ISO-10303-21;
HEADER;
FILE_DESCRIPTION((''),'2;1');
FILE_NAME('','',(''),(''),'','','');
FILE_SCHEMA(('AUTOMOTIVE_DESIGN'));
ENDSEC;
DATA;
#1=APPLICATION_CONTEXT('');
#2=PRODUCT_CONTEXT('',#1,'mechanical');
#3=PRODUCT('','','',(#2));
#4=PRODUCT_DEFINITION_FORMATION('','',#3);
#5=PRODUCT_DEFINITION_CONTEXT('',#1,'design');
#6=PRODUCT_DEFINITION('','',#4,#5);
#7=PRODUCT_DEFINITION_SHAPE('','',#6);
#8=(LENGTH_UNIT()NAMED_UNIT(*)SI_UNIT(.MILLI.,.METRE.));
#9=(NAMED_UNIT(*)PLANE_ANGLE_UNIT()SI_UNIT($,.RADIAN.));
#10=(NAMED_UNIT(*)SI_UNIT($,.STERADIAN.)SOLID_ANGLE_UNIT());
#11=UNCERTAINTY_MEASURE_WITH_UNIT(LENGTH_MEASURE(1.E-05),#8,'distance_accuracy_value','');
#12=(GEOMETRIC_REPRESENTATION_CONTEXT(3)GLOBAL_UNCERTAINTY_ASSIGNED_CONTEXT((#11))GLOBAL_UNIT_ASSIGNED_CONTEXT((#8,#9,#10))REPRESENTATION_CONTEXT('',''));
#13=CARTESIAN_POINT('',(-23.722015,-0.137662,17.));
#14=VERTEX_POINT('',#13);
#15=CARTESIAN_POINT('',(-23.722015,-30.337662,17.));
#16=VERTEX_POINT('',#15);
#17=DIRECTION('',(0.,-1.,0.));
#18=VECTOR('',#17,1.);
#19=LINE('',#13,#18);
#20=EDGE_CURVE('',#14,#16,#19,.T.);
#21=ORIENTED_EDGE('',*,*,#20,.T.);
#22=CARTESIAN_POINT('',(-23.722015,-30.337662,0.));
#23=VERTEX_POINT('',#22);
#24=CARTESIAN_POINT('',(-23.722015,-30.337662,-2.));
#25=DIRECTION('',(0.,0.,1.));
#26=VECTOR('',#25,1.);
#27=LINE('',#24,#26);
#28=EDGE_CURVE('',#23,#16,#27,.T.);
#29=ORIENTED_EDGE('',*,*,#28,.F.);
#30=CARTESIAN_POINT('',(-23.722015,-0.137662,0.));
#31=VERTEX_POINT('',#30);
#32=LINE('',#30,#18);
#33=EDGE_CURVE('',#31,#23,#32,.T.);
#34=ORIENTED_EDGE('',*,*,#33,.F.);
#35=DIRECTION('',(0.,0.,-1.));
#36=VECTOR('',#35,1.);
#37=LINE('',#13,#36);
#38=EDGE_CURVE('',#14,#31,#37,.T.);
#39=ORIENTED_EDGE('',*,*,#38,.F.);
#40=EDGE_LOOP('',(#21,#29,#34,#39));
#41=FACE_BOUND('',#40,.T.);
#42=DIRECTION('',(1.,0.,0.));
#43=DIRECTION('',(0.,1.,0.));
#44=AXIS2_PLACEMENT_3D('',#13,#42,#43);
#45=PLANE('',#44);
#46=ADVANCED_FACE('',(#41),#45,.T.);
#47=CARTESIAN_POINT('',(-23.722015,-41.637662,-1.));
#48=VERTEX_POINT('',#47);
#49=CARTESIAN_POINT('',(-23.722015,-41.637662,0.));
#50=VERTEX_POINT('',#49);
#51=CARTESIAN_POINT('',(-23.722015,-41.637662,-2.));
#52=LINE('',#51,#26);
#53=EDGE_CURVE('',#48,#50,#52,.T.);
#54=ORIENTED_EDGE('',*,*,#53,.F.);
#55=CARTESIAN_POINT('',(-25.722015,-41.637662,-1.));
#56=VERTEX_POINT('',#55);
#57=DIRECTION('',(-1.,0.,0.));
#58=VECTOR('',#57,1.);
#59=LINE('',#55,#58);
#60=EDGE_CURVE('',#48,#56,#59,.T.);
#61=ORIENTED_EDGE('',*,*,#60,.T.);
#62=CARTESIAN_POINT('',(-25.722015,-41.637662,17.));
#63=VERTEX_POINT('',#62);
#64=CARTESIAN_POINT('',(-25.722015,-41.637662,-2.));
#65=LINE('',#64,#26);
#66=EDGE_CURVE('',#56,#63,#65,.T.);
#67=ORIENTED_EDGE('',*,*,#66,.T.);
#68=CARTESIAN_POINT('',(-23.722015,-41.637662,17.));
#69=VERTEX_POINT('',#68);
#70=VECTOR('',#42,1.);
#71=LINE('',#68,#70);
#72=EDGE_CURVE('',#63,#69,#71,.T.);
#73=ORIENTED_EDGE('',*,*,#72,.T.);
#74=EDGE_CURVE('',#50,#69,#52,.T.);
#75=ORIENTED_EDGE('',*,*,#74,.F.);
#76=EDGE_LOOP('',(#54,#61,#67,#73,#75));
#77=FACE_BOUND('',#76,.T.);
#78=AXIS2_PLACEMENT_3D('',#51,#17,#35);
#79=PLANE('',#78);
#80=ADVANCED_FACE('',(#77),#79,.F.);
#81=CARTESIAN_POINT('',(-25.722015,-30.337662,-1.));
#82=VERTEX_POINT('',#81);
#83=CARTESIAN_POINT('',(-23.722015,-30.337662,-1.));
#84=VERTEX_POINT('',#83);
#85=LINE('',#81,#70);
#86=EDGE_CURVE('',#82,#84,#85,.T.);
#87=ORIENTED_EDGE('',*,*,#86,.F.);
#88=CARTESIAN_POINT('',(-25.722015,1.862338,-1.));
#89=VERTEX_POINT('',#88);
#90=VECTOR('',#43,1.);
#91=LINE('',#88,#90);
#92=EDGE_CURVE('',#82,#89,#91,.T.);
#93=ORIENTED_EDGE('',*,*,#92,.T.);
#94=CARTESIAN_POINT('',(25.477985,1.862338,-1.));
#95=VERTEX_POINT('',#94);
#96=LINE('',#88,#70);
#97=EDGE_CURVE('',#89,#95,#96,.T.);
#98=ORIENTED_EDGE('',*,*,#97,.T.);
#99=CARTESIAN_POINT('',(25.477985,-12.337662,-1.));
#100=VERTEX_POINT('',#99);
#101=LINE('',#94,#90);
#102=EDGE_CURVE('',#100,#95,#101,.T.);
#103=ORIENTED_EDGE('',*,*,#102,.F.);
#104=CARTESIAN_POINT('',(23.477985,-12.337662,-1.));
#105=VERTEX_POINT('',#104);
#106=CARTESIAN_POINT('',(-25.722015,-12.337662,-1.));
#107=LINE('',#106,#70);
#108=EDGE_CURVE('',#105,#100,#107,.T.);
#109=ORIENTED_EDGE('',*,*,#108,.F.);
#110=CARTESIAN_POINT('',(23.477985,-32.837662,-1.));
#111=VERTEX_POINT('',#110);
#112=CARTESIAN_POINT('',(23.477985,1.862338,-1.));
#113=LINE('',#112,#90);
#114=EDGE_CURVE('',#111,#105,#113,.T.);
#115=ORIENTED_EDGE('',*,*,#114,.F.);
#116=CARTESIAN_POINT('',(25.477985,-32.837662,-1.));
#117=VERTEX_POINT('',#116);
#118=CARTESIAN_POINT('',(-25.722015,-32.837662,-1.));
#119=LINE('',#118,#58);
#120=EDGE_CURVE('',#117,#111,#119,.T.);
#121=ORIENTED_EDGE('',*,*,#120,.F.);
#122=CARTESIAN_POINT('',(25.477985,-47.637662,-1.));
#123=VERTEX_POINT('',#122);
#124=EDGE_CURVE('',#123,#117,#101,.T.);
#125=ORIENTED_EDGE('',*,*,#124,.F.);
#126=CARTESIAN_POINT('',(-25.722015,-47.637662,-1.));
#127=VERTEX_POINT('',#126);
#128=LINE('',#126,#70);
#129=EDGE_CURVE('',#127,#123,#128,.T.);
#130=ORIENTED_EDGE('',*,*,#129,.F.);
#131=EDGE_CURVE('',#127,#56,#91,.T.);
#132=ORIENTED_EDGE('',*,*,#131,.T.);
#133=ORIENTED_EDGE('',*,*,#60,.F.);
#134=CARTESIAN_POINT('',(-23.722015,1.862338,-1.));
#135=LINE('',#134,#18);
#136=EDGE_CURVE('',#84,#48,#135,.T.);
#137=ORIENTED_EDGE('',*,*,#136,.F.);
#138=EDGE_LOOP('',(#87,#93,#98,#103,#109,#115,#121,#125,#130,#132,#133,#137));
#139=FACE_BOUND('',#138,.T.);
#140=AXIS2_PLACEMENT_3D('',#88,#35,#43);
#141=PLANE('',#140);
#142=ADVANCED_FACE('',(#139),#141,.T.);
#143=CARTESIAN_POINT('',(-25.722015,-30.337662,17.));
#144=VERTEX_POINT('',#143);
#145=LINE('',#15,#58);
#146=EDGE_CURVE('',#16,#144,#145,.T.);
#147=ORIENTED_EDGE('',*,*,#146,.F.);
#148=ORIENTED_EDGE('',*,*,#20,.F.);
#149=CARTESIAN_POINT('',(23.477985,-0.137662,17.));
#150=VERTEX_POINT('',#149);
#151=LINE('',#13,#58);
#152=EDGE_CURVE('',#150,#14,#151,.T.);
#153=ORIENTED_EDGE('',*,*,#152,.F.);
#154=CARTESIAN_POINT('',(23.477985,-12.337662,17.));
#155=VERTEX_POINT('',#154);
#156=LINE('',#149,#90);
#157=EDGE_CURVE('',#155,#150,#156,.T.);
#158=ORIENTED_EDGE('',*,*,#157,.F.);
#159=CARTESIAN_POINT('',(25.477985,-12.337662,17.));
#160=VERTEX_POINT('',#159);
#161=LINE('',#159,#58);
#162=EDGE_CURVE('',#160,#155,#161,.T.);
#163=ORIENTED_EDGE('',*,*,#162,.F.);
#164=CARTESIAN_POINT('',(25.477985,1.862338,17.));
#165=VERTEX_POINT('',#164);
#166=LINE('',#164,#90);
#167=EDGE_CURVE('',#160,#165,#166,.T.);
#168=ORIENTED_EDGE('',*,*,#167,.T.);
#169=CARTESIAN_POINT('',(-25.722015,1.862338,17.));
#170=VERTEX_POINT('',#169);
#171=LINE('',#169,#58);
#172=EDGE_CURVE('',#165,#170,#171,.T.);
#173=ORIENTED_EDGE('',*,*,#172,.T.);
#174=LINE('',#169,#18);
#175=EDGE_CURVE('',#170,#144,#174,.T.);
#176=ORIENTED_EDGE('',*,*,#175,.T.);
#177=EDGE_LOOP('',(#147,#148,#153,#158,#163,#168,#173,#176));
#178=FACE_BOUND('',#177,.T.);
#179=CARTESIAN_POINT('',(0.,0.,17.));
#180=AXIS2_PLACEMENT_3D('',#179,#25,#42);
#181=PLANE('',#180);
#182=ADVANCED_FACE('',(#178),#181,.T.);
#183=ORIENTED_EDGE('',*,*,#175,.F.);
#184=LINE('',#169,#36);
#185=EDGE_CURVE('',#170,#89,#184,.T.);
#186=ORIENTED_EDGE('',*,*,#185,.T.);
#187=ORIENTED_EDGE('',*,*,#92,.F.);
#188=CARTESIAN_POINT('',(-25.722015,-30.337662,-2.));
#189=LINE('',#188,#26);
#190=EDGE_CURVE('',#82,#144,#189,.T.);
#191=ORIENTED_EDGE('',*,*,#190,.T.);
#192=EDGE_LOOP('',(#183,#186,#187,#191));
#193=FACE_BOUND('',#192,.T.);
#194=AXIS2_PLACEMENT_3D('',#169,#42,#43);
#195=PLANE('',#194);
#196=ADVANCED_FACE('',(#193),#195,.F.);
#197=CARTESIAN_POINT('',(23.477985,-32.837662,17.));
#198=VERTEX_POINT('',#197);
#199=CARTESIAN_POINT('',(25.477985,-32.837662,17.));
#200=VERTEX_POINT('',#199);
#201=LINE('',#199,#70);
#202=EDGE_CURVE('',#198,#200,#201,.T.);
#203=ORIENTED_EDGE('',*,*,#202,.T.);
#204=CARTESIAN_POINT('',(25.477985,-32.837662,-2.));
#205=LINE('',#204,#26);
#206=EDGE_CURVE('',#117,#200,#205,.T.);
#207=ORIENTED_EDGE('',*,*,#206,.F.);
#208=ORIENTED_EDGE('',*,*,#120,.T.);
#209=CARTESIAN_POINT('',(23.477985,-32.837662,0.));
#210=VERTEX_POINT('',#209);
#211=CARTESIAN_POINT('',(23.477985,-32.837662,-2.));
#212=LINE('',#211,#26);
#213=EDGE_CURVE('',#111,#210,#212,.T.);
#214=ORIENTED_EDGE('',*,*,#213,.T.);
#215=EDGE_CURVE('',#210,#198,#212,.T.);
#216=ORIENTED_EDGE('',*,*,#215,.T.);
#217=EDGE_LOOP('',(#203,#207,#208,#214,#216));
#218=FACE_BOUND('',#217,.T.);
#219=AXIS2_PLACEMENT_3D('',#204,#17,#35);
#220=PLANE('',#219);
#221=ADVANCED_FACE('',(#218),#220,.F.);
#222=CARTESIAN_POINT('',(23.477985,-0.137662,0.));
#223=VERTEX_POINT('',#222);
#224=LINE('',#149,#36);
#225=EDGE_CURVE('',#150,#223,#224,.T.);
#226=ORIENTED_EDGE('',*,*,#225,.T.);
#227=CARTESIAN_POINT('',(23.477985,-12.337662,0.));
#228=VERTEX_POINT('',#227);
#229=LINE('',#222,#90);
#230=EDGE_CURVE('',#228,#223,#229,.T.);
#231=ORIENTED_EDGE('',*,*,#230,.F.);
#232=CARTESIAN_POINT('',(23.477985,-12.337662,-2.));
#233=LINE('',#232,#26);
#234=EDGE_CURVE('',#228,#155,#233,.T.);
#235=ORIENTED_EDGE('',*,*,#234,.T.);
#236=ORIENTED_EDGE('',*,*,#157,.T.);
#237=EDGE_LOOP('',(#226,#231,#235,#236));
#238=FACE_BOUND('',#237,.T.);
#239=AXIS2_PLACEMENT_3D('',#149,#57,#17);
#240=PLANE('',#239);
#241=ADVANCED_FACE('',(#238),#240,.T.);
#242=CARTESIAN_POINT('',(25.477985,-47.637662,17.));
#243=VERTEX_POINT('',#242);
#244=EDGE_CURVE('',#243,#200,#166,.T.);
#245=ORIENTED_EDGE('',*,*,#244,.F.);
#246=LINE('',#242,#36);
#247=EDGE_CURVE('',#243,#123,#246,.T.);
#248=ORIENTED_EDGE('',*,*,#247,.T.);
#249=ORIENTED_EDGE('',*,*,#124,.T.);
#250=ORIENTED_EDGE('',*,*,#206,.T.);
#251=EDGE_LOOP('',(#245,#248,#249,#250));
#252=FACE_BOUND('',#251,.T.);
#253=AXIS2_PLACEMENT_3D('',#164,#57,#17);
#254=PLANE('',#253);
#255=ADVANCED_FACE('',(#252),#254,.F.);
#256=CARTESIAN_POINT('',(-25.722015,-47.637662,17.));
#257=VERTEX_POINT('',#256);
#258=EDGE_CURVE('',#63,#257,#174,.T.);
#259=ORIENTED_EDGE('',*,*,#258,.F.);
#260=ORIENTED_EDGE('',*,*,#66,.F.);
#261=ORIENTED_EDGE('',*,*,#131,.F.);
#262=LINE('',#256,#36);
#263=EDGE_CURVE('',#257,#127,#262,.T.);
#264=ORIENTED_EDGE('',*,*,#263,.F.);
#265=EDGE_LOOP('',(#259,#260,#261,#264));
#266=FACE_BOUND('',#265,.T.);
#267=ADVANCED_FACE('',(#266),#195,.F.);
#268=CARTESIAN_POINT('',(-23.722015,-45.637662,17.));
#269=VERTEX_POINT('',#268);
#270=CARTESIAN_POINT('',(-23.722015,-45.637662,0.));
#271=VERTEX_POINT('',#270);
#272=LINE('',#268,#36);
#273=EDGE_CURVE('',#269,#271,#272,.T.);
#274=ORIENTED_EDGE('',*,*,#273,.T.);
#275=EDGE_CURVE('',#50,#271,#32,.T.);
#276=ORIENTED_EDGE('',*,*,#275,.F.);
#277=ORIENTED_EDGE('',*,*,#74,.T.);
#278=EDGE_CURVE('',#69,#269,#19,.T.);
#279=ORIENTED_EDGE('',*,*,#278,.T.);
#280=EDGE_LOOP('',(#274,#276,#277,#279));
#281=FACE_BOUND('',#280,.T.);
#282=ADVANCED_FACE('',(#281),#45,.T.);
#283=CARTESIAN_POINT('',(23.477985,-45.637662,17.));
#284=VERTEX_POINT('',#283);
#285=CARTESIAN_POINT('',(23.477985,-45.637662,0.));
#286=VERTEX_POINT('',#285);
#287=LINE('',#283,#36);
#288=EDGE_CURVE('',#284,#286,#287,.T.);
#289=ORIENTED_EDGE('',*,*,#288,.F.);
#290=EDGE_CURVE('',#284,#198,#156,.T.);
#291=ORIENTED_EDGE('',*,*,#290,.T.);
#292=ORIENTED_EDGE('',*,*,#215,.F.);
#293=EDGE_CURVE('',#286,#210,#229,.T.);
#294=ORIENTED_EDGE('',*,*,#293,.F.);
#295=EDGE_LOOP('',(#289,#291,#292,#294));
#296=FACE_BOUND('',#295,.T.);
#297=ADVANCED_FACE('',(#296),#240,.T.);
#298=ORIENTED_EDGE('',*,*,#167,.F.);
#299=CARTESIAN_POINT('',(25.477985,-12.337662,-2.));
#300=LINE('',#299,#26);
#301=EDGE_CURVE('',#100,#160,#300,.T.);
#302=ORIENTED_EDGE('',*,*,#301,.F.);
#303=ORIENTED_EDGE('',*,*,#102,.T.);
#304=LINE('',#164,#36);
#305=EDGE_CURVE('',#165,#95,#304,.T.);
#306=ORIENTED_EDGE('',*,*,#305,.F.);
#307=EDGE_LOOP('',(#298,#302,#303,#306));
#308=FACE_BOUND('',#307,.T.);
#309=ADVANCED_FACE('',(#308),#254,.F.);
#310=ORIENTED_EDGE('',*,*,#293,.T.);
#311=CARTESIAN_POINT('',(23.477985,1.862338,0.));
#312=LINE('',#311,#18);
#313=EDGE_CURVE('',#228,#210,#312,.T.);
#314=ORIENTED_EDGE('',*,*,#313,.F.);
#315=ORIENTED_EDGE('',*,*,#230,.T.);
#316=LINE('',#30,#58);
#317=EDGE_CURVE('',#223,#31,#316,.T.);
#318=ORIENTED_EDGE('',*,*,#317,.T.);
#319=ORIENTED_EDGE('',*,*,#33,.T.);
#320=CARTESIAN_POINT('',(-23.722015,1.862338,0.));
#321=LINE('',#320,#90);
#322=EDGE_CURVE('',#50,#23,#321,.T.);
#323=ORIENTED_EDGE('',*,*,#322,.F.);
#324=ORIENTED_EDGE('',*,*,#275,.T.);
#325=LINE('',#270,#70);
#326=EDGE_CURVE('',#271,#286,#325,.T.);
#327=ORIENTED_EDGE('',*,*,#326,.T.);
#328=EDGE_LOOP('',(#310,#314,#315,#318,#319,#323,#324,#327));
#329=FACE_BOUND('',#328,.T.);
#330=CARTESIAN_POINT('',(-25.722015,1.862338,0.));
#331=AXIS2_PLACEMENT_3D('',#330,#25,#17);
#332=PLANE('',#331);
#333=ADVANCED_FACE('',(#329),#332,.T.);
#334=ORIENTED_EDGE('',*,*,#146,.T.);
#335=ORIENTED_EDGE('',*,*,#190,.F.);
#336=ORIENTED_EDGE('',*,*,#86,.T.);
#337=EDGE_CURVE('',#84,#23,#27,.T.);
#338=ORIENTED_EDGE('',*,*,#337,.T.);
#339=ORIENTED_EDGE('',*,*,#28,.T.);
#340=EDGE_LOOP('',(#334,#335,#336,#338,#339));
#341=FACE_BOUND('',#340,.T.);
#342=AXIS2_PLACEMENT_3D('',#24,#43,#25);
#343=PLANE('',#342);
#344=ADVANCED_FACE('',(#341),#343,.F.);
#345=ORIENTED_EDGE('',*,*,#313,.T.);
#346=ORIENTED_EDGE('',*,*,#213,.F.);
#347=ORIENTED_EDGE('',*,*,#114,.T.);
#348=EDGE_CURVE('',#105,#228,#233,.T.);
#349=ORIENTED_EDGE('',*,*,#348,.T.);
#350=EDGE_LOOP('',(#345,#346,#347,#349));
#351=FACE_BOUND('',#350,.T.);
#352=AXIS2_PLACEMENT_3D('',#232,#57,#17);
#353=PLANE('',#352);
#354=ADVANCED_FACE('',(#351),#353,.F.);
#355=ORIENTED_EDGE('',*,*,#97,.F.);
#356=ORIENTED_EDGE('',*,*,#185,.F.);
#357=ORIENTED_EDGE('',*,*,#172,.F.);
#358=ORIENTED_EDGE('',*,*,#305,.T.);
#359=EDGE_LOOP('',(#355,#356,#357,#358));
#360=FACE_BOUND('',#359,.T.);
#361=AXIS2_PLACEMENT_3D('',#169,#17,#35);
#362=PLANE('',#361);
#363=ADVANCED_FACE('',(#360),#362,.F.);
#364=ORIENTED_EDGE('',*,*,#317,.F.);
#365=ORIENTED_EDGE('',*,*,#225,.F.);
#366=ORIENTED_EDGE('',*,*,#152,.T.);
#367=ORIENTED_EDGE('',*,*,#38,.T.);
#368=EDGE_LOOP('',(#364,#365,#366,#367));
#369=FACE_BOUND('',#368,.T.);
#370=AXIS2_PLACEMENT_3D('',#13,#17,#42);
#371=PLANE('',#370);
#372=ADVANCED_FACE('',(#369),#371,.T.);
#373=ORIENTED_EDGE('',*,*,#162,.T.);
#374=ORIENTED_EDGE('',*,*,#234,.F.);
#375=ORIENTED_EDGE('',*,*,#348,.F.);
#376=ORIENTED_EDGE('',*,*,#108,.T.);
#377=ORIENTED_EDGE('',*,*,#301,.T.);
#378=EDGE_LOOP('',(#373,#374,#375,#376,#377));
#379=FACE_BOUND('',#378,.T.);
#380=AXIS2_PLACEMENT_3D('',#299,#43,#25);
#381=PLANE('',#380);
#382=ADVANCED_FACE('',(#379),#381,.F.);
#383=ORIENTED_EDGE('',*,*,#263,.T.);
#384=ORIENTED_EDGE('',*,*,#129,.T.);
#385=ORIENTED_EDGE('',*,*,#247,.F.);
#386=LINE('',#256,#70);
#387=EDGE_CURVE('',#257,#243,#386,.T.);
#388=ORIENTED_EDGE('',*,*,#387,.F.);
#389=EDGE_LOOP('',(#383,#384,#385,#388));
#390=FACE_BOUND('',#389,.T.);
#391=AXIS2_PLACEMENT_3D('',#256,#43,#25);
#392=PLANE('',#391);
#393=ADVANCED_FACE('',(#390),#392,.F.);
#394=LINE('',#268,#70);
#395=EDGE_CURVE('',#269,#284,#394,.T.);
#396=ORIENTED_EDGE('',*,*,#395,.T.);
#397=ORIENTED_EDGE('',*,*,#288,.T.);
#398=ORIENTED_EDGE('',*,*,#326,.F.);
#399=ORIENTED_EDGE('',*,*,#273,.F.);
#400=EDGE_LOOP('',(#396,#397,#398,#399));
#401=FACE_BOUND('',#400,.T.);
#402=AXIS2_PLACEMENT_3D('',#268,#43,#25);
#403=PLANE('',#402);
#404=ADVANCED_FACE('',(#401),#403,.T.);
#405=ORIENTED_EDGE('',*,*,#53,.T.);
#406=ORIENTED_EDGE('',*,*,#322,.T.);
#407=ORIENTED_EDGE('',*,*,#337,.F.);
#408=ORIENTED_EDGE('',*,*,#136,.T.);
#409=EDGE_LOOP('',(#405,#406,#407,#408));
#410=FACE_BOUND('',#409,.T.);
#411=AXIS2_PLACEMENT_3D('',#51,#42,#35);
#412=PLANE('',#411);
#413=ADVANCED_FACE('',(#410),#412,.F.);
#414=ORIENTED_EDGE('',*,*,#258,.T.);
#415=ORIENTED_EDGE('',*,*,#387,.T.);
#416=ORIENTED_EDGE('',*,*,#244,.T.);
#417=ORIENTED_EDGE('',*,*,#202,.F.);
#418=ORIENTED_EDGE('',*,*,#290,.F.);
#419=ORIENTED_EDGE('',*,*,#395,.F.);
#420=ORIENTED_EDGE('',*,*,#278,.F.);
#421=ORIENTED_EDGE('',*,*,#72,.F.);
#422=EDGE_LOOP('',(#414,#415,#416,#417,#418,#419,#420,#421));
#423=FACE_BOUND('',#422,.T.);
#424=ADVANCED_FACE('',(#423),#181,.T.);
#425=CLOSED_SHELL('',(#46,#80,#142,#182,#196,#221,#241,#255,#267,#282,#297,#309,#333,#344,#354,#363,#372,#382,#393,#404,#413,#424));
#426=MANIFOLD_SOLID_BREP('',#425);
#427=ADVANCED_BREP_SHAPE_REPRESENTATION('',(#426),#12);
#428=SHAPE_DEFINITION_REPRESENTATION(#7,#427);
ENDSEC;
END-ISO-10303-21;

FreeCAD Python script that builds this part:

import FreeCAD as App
import Part
import Sketcher
from FreeCAD import Vector


def add_polygon(sketch, points):
    """Adds a closed chain of lines whose ends are joined by coincident constraints."""
    first, n = sketch.GeometryCount, len(points)
    for a, b in zip(points, points[1:] + points[:1]):
        sketch.addGeometry(Part.LineSegment(App.Vector(*a, 0), App.Vector(*b, 0)), False)
    for i in range(n):
        sketch.addConstraint(Sketcher.Constraint("Coincident", first + i, 2, first + (i + 1) % n, 1))

doc = App.newDocument("Part")
params = doc.addObject("Spreadsheet::Sheet", "Params")
for row, (alias, value) in enumerate([
    ("sketch1_width", "51.2 mm"),
    ("sketch1_width2", "47.2 mm"),
    ("sketch1_height", "49.5 mm"),
    ("sketch1_height2", "45.5 mm"),
    ("pad1_length", "17 mm"),
    ("sketch2_height", "1 mm"),
    ("sketch2_width", "49.5 mm"),
    ("pad2_length", "51.2 mm"),
    ("sketch3_width", "2 mm"),
    ("sketch3_height", "20.5 mm"),
    ("sketch3_height2", "11.3 mm"),
    ("pocket1_length", "19 mm"),
], start=1):
    params.set(f"A{row}", alias)
    params.set(f"B{row}", "=" + value)
    params.setAlias(f"B{row}", alias)

body = doc.addObject("PartDesign::Body", "Body")

sketch1 = body.newObject("Sketcher::SketchObject", "Sketch")
sketch1.AttachmentSupport = (doc.getObject("XY_Plane"), [""])
sketch1.MapMode = "FlatFace"
add_polygon(sketch1, [(-26, 2), (-26, -48), (25, -48), (25, 2)])
add_polygon(sketch1, [(23, -46), (-24, -46), (-24, 0), (23, 0)])
sketch1.addConstraint(Sketcher.Constraint("Vertical", 0))
sketch1.addConstraint(Sketcher.Constraint("Horizontal", 1))
sketch1.addConstraint(Sketcher.Constraint("Vertical", 2))
sketch1.addConstraint(Sketcher.Constraint("Horizontal", 3))
sketch1.addConstraint(Sketcher.Constraint("Horizontal", 4))
sketch1.addConstraint(Sketcher.Constraint("Vertical", 5))
sketch1.addConstraint(Sketcher.Constraint("Horizontal", 6))
sketch1.addConstraint(Sketcher.Constraint("Vertical", 7))
sketch1.addConstraint(Sketcher.Constraint("DistanceX", 1, 1, 1, 2, 51.2))
sketch1.addConstraint(Sketcher.Constraint("DistanceX", 4, 2, 4, 1, 47.2))
sketch1.addConstraint(Sketcher.Constraint("DistanceY", 0, 2, 0, 1, 49.5))
sketch1.addConstraint(Sketcher.Constraint("DistanceY", 5, 1, 5, 2, 45.5))
sketch1.addConstraint(Sketcher.Constraint("DistanceX", 0, 2, 4, 2, 2.0))
sketch1.addConstraint(Sketcher.Constraint("DistanceY", 0, 2, 4, 2, 2.0))
sketch1.addConstraint(Sketcher.Constraint("DistanceX", 0, 2, -1, 1, 25.722015))
sketch1.addConstraint(Sketcher.Constraint("DistanceY", 0, 2, -1, 1, 47.637662))
sketch1.setExpression("Constraints[16]", "Params.sketch1_width")
sketch1.setExpression("Constraints[17]", "Params.sketch1_width2")
sketch1.setExpression("Constraints[18]", "Params.sketch1_height")
sketch1.setExpression("Constraints[19]", "Params.sketch1_height2")
pad1 = body.newObject("PartDesign::Pad", "Pad")
pad1.Profile = sketch1
pad1.setExpression("Length", "Params.pad1_length")

sketch2 = body.newObject("Sketcher::SketchObject", "Sketch001")
sketch2.AttachmentSupport = (doc.getObject("YZ_Plane"), [""])
sketch2.MapMode = "FlatFace"
sketch2.AttachmentOffset = App.Placement(Vector(0, 0, 25.477985), App.Rotation())
add_polygon(sketch2, [(1.9, 0), (-47.6, 0), (-47.6, -1), (1.9, -1)])
sketch2.addConstraint(Sketcher.Constraint("Horizontal", 0))
sketch2.addConstraint(Sketcher.Constraint("Vertical", 1))
sketch2.addConstraint(Sketcher.Constraint("Horizontal", 2))
sketch2.addConstraint(Sketcher.Constraint("Vertical", 3))
sketch2.addConstraint(Sketcher.Constraint("PointOnObject", 0, 2, -1))
sketch2.addConstraint(Sketcher.Constraint("DistanceY", 1, 2, 1, 1, 1.0))
sketch2.addConstraint(Sketcher.Constraint("DistanceX", 0, 2, 0, 1, 49.5))
sketch2.addConstraint(Sketcher.Constraint("DistanceX", 0, 2, -1, 1, 47.637662))
sketch2.setExpression("Constraints[9]", "Params.sketch2_height")
sketch2.setExpression("Constraints[10]", "Params.sketch2_width")
pad2 = body.newObject("PartDesign::Pad", "Pad001")
pad2.Profile = sketch2
pad2.setExpression("Length", "Params.pad2_length")
pad2.Reversed = True

sketch3 = body.newObject("Sketcher::SketchObject", "Sketch002")
sketch3.AttachmentSupport = (doc.getObject("XY_Plane"), [""])
sketch3.MapMode = "FlatFace"
sketch3.AttachmentOffset = App.Placement(Vector(0, 0, 17), App.Rotation())
add_polygon(sketch3, [(23.5, -12.3), (23.5, -32.8), (25.5, -32.8), (25.5, -12.3)])
add_polygon(sketch3, [(-25.7, -30.3), (-25.7, -41.6), (-23.7, -41.6), (-23.7, -30.3)])
sketch3.addConstraint(Sketcher.Constraint("Vertical", 0))
sketch3.addConstraint(Sketcher.Constraint("Horizontal", 1))
sketch3.addConstraint(Sketcher.Constraint("Vertical", 2))
sketch3.addConstraint(Sketcher.Constraint("Horizontal", 3))
sketch3.addConstraint(Sketcher.Constraint("Vertical", 4))
sketch3.addConstraint(Sketcher.Constraint("Horizontal", 5))
sketch3.addConstraint(Sketcher.Constraint("Vertical", 6))
sketch3.addConstraint(Sketcher.Constraint("Horizontal", 7))
sketch3.addConstraint(Sketcher.Constraint("Equal", 3, 5))
sketch3.addConstraint(Sketcher.Constraint("DistanceX", 1, 1, 1, 2, 2.0))
sketch3.addConstraint(Sketcher.Constraint("DistanceY", 0, 2, 0, 1, 20.5))
sketch3.addConstraint(Sketcher.Constraint("DistanceY", 4, 2, 4, 1, 11.3))
sketch3.addConstraint(Sketcher.Constraint("DistanceY", 6, 2, 3, 2, 18.0))
sketch3.addConstraint(Sketcher.Constraint("DistanceX", 4, 2, 0, 2, 49.2))
sketch3.addConstraint(Sketcher.Constraint("DistanceX", -1, 1, 0, 2, 23.477985))
sketch3.addConstraint(Sketcher.Constraint("DistanceY", 0, 2, -1, 1, 32.837662))
sketch3.setExpression("Constraints[17]", "Params.sketch3_width")
sketch3.setExpression("Constraints[18]", "Params.sketch3_height")
sketch3.setExpression("Constraints[19]", "Params.sketch3_height2")
pocket1 = body.newObject("PartDesign::Pocket", "Pocket")
pocket1.Profile = sketch3
pocket1.setExpression("Length", "Params.pocket1_length")

doc.recompute()
